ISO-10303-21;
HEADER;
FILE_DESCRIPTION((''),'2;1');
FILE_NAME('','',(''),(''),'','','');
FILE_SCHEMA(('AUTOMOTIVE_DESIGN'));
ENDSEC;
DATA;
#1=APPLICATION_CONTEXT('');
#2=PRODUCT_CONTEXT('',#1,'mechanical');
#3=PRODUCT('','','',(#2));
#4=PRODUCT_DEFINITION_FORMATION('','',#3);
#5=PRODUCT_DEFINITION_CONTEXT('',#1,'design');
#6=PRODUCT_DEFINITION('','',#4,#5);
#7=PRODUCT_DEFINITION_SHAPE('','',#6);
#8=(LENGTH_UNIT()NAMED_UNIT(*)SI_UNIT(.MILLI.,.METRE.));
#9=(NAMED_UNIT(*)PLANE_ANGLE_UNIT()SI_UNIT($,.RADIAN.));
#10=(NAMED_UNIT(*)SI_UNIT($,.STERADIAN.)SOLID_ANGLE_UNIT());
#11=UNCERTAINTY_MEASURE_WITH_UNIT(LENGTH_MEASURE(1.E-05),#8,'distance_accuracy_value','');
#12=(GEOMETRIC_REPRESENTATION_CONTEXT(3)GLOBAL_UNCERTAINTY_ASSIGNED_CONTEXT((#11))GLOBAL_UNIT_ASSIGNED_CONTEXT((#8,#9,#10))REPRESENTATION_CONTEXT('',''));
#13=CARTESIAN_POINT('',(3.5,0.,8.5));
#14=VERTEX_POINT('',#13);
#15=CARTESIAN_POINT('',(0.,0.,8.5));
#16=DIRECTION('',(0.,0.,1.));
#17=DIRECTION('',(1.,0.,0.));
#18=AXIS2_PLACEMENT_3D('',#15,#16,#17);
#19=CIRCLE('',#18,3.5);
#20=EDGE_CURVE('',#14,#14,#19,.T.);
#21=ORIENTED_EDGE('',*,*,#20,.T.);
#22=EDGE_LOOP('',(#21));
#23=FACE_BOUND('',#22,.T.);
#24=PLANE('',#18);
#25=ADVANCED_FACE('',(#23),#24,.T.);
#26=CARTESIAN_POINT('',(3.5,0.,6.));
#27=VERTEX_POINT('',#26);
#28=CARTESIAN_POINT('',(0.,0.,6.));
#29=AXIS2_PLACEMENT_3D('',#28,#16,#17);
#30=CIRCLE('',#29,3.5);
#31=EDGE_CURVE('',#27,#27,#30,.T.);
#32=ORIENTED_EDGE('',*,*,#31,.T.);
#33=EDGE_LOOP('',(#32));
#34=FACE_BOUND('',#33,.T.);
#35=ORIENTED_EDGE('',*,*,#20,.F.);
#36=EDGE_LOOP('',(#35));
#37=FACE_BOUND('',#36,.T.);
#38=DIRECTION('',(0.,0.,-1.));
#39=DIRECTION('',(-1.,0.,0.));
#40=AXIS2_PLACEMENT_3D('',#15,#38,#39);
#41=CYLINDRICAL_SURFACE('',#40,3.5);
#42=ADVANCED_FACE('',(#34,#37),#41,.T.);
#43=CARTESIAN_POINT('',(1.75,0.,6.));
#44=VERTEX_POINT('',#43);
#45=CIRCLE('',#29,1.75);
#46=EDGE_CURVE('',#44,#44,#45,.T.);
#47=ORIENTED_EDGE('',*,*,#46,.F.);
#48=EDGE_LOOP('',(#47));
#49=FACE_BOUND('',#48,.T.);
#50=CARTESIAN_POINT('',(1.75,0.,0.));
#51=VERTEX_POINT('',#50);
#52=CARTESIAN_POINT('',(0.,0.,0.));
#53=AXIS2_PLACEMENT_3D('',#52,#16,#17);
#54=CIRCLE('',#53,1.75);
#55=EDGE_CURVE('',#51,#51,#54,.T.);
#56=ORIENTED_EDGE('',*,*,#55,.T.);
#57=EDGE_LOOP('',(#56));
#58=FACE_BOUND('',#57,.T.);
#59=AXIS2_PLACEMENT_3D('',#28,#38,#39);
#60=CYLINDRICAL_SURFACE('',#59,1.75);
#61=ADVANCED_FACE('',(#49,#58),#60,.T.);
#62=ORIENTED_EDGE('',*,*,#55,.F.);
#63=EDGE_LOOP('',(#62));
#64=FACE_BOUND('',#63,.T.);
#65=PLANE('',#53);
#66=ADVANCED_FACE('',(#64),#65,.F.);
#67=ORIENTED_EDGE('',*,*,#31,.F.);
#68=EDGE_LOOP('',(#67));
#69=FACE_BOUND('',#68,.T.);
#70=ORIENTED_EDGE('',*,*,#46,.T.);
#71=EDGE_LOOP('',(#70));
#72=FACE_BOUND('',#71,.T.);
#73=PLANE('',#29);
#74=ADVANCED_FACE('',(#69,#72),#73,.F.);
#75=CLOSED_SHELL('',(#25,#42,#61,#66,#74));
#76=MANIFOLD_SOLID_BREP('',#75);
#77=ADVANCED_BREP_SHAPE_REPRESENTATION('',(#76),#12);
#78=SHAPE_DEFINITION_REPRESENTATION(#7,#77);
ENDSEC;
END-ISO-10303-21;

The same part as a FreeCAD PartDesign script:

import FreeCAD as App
import Part
import Sketcher

V = App.Vector

doc = App.newDocument("Part")
body = doc.addObject("PartDesign::Body", "Body")

sketch1 = body.newObject("Sketcher::SketchObject", "Sketch")
sketch1.AttachmentSupport = (doc.getObject("XY_Plane"), [""])
sketch1.MapMode = "FlatFace"
sketch1.addGeometry(Part.Circle(V(0, 0, 0), V(0, 0, 1), 1.75), False)
sketch1.addConstraint([
    Sketcher.Constraint("Coincident", 0, 3, -1, 1),
    Sketcher.Constraint("Diameter", 0, 3.5),
])
pad1 = body.newObject("PartDesign::Pad", "Pad")
pad1.Profile = sketch1
pad1.Length = 6

sketch2 = body.newObject("Sketcher::SketchObject", "Sketch001")
sketch2.AttachmentSupport = (doc.getObject("XY_Plane"), [""])
sketch2.MapMode = "FlatFace"
sketch2.AttachmentOffset = App.Placement(V(0, 0, 6), App.Rotation())
sketch2.addGeometry(Part.Circle(V(0, 0, 0), V(0, 0, 1), 3.5), False)
sketch2.addConstraint([
    Sketcher.Constraint("Coincident", 0, 3, -1, 1),
    Sketcher.Constraint("Diameter", 0, 7.0),
])
pad2 = body.newObject("PartDesign::Pad", "Pad001")
pad2.Profile = sketch2
pad2.Length = 2.5

doc.recompute()
